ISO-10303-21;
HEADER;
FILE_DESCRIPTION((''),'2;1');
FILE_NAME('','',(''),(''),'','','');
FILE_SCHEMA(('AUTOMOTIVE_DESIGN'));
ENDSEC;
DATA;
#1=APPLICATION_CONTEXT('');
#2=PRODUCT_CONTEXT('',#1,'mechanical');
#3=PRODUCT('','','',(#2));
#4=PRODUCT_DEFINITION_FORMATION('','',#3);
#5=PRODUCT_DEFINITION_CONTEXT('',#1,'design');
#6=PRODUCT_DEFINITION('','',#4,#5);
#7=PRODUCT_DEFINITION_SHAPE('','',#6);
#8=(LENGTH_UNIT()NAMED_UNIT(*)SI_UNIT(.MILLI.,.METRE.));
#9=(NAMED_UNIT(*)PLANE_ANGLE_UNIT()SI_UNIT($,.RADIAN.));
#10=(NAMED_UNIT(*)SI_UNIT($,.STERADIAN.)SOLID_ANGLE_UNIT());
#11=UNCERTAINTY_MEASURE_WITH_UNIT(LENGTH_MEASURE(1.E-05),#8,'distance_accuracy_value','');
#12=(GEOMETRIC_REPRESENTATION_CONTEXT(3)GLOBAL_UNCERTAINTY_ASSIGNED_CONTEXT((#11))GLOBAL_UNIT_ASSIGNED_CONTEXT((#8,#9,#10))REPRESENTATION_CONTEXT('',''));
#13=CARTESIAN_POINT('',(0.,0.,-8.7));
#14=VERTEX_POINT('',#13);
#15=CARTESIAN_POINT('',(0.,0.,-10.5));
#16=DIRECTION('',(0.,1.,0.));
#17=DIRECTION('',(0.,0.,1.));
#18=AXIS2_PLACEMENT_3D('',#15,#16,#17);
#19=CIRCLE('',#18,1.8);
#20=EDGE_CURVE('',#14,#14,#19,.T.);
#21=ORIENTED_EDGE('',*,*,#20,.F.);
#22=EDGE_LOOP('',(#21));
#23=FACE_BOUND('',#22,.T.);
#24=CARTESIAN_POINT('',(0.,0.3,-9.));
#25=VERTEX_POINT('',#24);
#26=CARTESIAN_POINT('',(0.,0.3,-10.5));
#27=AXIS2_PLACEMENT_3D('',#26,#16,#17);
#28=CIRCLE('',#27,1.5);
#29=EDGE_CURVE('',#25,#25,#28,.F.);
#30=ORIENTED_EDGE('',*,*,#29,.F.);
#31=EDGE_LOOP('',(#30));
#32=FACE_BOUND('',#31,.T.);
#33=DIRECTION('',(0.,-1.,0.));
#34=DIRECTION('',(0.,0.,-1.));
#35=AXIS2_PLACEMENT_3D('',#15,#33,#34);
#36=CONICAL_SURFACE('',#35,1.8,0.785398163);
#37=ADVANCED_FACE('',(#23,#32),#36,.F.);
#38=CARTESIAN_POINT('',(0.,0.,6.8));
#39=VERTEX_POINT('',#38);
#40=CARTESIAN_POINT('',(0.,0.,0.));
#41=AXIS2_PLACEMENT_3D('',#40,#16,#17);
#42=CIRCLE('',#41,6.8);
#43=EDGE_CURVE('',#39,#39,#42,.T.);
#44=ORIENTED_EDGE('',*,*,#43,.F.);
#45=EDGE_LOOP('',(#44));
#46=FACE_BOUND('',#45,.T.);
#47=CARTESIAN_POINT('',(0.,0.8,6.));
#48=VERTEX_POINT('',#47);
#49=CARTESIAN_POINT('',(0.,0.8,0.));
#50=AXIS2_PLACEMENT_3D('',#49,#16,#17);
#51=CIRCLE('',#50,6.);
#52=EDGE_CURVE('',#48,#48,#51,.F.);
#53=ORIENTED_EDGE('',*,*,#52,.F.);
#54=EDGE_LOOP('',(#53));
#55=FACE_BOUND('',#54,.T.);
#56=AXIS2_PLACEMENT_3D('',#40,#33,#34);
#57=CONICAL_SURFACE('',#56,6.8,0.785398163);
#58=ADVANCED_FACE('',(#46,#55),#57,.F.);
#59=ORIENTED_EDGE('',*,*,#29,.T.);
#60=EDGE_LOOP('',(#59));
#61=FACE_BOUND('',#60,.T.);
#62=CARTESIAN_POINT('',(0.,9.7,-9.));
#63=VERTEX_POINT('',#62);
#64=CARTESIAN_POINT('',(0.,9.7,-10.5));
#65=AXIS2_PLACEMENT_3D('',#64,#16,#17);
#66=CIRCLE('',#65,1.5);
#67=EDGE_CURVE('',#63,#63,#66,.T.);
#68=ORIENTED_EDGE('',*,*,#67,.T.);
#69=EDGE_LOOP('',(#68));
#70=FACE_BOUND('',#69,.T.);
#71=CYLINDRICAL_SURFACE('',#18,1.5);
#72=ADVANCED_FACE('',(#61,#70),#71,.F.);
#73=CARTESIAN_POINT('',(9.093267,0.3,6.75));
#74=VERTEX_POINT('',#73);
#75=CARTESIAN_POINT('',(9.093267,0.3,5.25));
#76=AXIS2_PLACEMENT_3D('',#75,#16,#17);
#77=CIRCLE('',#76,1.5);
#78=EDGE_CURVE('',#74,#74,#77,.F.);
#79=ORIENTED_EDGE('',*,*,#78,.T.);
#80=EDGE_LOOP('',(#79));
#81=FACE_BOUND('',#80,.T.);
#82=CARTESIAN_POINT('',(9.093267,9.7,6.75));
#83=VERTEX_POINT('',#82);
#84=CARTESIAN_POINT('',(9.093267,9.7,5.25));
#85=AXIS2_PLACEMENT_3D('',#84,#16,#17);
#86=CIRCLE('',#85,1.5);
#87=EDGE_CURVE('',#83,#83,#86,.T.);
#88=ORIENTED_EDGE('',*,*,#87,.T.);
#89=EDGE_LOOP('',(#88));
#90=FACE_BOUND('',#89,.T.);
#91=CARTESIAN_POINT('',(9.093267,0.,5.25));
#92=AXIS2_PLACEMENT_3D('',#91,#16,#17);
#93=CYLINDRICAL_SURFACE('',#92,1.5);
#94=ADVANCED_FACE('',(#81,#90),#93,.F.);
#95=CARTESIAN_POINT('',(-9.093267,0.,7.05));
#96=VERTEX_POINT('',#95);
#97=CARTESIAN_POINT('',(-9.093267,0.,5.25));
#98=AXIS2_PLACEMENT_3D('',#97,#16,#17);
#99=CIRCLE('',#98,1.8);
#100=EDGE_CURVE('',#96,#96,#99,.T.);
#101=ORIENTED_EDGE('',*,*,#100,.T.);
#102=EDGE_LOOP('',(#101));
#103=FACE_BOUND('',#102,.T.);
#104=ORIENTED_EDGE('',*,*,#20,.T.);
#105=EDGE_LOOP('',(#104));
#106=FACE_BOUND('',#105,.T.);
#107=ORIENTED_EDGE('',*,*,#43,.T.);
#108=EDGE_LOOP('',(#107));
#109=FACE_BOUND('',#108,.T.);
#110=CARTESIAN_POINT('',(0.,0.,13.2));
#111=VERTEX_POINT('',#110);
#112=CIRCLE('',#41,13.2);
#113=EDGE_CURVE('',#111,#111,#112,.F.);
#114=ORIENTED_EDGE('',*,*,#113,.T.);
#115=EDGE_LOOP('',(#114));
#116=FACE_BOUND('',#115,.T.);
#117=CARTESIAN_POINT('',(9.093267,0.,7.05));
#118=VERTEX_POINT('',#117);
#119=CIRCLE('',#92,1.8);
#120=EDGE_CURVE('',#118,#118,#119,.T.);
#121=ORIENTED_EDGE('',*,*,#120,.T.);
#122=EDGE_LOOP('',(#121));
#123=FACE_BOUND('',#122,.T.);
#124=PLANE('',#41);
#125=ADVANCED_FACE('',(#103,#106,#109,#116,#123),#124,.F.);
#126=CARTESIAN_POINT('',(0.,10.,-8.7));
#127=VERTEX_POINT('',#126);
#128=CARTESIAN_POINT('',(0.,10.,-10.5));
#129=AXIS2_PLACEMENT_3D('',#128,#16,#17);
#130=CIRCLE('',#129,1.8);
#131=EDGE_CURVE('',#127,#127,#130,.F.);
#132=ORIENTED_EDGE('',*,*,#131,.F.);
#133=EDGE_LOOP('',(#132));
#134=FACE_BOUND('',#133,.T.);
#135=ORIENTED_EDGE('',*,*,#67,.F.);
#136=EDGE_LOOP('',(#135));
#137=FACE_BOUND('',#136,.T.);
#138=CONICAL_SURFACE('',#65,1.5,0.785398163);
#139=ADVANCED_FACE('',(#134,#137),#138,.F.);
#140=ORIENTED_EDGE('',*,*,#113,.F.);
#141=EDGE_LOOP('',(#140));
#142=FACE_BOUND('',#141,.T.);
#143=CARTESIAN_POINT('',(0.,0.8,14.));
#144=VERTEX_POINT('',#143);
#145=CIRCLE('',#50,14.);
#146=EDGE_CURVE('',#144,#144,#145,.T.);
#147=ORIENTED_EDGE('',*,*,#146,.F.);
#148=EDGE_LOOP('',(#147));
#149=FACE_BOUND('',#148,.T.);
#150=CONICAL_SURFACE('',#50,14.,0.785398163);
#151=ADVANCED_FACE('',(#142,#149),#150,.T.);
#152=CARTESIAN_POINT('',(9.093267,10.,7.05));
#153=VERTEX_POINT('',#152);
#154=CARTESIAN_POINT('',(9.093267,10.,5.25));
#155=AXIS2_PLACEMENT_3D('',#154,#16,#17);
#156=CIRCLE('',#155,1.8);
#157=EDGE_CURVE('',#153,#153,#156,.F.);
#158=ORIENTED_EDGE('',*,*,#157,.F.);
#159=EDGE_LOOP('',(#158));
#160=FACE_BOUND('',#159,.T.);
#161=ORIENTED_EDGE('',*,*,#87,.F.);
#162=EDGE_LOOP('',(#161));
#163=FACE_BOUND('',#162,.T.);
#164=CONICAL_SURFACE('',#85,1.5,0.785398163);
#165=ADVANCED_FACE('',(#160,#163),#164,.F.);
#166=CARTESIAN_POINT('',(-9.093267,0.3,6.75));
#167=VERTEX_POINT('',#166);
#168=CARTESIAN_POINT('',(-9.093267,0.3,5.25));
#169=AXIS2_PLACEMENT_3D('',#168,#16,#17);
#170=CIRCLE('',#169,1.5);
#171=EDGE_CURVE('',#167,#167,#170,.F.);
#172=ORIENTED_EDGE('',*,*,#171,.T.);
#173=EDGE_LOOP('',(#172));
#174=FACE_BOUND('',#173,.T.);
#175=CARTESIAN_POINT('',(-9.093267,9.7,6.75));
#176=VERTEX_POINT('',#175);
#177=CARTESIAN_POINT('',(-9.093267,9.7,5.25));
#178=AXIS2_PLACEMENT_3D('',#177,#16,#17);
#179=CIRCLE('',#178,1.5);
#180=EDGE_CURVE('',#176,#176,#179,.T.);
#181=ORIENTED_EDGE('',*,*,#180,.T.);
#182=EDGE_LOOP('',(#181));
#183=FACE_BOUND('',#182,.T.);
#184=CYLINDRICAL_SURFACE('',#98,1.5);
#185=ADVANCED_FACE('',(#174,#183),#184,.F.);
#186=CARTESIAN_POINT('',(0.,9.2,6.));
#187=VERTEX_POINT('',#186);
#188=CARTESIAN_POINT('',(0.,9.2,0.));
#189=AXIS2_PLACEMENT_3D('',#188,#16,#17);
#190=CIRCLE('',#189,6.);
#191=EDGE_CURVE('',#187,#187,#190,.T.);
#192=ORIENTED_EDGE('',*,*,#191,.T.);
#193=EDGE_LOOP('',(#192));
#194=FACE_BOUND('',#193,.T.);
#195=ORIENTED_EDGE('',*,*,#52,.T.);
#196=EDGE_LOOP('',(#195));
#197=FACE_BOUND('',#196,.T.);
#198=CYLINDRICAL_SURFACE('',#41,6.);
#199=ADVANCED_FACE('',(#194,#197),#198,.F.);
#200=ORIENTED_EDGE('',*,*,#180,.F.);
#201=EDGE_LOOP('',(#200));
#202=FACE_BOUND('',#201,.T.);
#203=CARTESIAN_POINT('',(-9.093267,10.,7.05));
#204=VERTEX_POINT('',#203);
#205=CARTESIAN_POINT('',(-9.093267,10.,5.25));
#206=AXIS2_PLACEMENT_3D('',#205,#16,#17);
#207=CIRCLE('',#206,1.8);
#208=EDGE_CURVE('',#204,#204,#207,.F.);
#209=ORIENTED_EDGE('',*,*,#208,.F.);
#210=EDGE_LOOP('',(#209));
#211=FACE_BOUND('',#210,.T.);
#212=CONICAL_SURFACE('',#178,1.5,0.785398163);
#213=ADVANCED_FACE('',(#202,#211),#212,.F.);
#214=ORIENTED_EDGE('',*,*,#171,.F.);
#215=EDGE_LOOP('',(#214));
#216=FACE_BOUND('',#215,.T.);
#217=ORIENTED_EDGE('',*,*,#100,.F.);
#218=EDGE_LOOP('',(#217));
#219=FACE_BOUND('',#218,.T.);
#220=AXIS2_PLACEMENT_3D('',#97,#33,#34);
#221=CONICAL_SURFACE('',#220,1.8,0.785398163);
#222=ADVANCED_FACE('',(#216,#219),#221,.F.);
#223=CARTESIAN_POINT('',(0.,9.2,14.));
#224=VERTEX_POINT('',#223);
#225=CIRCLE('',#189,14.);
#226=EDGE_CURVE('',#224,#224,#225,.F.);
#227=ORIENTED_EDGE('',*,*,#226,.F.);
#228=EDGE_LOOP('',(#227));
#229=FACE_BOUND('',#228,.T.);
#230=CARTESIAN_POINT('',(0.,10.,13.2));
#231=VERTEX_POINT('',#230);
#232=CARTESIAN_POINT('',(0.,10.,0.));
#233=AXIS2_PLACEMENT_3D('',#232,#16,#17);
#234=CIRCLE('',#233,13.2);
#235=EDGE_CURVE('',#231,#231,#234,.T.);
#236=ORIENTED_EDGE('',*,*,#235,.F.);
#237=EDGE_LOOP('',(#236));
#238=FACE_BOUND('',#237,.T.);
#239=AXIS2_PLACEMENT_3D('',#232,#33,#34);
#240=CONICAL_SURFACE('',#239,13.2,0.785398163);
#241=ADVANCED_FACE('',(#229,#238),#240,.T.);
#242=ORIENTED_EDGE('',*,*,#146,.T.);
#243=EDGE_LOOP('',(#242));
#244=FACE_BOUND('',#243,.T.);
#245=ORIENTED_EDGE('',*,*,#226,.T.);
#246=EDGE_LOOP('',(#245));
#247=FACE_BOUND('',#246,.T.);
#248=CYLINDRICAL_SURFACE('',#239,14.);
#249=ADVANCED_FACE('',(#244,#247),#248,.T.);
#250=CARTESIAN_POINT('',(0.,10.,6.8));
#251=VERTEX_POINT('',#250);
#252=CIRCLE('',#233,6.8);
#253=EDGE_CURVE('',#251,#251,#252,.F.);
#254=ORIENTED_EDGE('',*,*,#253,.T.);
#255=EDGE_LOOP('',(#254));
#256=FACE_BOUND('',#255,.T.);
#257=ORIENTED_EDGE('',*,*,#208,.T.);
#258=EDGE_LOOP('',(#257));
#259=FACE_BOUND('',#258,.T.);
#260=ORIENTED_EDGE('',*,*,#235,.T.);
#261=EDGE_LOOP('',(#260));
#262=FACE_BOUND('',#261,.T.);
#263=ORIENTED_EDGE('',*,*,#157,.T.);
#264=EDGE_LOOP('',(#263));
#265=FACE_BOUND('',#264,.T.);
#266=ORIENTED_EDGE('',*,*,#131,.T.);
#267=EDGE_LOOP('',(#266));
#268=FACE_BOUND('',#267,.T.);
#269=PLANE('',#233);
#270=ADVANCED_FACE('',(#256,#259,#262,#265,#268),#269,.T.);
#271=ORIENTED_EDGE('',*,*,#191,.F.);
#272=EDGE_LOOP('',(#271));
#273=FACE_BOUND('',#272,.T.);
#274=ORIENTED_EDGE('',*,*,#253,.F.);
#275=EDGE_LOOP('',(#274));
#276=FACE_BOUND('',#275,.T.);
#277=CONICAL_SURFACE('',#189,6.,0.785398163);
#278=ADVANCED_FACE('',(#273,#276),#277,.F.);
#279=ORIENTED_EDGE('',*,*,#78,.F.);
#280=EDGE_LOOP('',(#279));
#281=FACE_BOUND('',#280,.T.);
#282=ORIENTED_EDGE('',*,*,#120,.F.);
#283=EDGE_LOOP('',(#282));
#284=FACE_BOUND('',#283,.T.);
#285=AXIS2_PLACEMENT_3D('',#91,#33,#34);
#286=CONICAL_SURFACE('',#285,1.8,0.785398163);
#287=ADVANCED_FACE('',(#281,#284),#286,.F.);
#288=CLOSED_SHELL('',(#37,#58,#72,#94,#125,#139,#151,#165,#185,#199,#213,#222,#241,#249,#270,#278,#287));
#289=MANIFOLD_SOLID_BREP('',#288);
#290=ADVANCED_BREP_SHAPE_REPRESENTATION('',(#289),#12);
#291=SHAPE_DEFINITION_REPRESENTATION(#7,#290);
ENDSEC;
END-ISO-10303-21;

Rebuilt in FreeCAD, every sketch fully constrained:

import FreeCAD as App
import Part
import Sketcher

V = App.Vector
Q = App.Units.Quantity


def edges_at(feature, points):
    """Names of the edges that pass closest to the given points."""
    edges = feature.Shape.Edges
    near = lambda p: min(range(len(edges)), key=lambda i: edges[i].distToShape(Part.Vertex(*p))[0])
    return sorted({f"Edge{near(p) + 1}" for p in points})

doc = App.newDocument("Part")
body = doc.addObject("PartDesign::Body", "Body")

sketch1 = body.newObject("Sketcher::SketchObject", "Sketch")
sketch1.AttachmentSupport = (doc.getObject("XZ_Plane"), [""])
sketch1.MapMode = "FlatFace"
sketch1.addGeometry(Part.Circle(V(0, 0, 0), V(0, 0, 1), 14), False)
sketch1.addConstraint([
    Sketcher.Constraint("Coincident", 0, 3, -1, 1),
    Sketcher.Constraint("Diameter", 0, Q("28 mm")),
])
pad1 = body.newObject("PartDesign::Pad", "Pad")
pad1.Profile = sketch1
pad1.Length = 10
pad1.Reversed = True

sketch2 = body.newObject("Sketcher::SketchObject", "Sketch001")
sketch2.AttachmentSupport = (doc.getObject("XZ_Plane"), [""])
sketch2.MapMode = "FlatFace"
sketch2.AttachmentOffset = App.Placement(V(0, 0, -10), App.Rotation())
sketch2.addGeometry(Part.Circle(V(0, 0, 0), V(0, 0, 1), 6), False)
sketch2.addConstraint([
    Sketcher.Constraint("Coincident", 0, 3, -1, 1),
    Sketcher.Constraint("Diameter", 0, Q("12 mm")),
])
pocket1 = body.newObject("PartDesign::Pocket", "Pocket")
pocket1.Profile = sketch2
pocket1.Type = "ThroughAll"
pocket1.Reversed = True

sketch3 = body.newObject("Sketcher::SketchObject", "Sketch002")
sketch3.AttachmentSupport = (doc.getObject("XZ_Plane"), [""])
sketch3.MapMode = "FlatFace"
sketch3.AttachmentOffset = App.Placement(V(0, 0, -10), App.Rotation())
sketch3.addGeometry(Part.Circle(V(0, -10.5, 0), V(0, 0, 1), 1.5), False)
sketch3.addConstraint([
    Sketcher.Constraint("PointOnObject", 0, 3, -2),
    Sketcher.Constraint("Diameter", 0, Q("3 mm")),
    Sketcher.Constraint("DistanceY", 0, 3, -1, 1, Q("10.5 mm")),
])
pocket2 = body.newObject("PartDesign::Pocket", "Pocket001")
pocket2.Profile = sketch3
pocket2.Type = "ThroughAll"
pocket2.Reversed = True
doc.recompute()

chamfer = body.newObject("PartDesign::Chamfer", "Chamfer")
chamfer.Base = (pocket2, edges_at(pocket2, [
    (0, 0, -14),
    (0, 10, -14),
    (0, 0, -6),
    (0, 10, -6),
]))
chamfer.Size = 0.8
doc.recompute()

chamfer2 = body.newObject("PartDesign::Chamfer", "Chamfer001")
chamfer2.Base = (chamfer, edges_at(chamfer, [(0, 0, -12), (0, 10, -12)]))
chamfer2.Size = 0.3
doc.recompute()

polarpattern = body.newObject("PartDesign::PolarPattern", "PolarPattern")
polarpattern.Originals = [pocket2]
polarpattern.Axis = (doc.getObject("Y_Axis"), [""])
polarpattern.Angle = 360
polarpattern.Occurrences = 3
body.Tip = polarpattern
doc.recompute()

chamfer3 = body.newObject("PartDesign::Chamfer", "Chamfer002")
chamfer3.Base = (polarpattern, edges_at(polarpattern, [
    (-10.392, 0, 6),
    (-10.392, 10, 6),
    (10.392, 0, 6),
    (10.392, 10, 6),
]))
chamfer3.Size = 0.3

doc.recompute()
